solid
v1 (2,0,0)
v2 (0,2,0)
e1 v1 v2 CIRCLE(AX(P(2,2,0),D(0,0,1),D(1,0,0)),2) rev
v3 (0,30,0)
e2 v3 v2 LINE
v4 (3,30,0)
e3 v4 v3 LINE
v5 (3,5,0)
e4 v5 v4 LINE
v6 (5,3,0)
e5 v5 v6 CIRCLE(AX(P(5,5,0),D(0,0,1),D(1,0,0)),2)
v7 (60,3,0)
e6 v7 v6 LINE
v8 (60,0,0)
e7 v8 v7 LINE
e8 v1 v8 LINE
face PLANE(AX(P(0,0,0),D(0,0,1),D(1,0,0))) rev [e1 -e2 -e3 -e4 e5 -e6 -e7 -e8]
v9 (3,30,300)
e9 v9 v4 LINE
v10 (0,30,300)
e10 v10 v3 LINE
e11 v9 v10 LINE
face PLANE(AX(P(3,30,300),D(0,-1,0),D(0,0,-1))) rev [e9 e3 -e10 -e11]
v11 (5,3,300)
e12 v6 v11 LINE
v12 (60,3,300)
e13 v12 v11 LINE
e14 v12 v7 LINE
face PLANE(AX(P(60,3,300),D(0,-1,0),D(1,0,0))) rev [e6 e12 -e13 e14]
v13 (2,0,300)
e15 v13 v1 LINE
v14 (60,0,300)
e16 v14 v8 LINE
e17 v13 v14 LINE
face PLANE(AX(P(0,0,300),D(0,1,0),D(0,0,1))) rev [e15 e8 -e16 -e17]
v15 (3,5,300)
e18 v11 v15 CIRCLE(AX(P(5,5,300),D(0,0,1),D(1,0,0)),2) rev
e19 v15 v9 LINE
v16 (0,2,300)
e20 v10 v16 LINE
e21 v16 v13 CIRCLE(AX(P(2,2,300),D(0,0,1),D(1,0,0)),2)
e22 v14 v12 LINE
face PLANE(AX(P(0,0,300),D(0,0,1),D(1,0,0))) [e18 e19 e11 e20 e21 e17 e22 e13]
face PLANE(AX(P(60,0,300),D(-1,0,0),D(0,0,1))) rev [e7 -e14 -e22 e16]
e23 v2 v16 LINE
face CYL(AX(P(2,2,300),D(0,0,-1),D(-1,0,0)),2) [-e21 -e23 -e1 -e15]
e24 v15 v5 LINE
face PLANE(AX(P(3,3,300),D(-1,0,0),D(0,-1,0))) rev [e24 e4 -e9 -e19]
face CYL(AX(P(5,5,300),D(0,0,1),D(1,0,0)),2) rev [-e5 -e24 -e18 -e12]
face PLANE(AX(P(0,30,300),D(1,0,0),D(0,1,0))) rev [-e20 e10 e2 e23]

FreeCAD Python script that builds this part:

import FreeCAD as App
import Part
import Sketcher


def edges_at(feature, points):
    """Names of the edges that pass closest to the given points."""
    edges = feature.Shape.Edges
    near = lambda p: min(range(len(edges)), key=lambda i: edges[i].distToShape(Part.Vertex(*p))[0])
    return sorted({f"Edge{near(p) + 1}" for p in points})

doc = App.newDocument("Part")
body = doc.addObject("PartDesign::Body", "Body")

sketch1 = body.newObject("Sketcher::SketchObject", "Sketch")
sketch1.AttachmentSupport = (doc.getObject("XY_Plane"), [""])
sketch1.MapMode = "FlatFace"
sketch1.addGeometry([
    Part.LineSegment(App.Vector(0, 30, 0), App.Vector(0, 0, 0)),
    Part.LineSegment(App.Vector(0, 0, 0), App.Vector(60, 0, 0)),
    Part.LineSegment(App.Vector(60, 0, 0), App.Vector(60, 3, 0)),
    Part.LineSegment(App.Vector(60, 3, 0), App.Vector(3, 3, 0)),
    Part.LineSegment(App.Vector(3, 3, 0), App.Vector(3, 30, 0)),
    Part.LineSegment(App.Vector(3, 30, 0), App.Vector(0, 30, 0)),
], False)
sketch1.addConstraint([
    Sketcher.Constraint("Coincident", 0, 2, 1, 1),
    Sketcher.Constraint("Coincident", 1, 2, 2, 1),
    Sketcher.Constraint("Coincident", 2, 2, 3, 1),
    Sketcher.Constraint("Coincident", 3, 2, 4, 1),
    Sketcher.Constraint("Coincident", 4, 2, 5, 1),
    Sketcher.Constraint("Coincident", 5, 2, 0, 1),
    Sketcher.Constraint("Vertical", 0),
    Sketcher.Constraint("Horizontal", 1),
    Sketcher.Constraint("Vertical", 2),
    Sketcher.Constraint("Horizontal", 3),
    Sketcher.Constraint("Vertical", 4),
    Sketcher.Constraint("Horizontal", 5),
    Sketcher.Constraint("Coincident", 0, 2, -1, 1),
    Sketcher.Constraint("Equal", 5, 2),
    Sketcher.Constraint("DistanceX", 1, 1, 1, 2, 60.0),
    Sketcher.Constraint("DistanceX", 3, 2, 3, 1, 57.0),
    Sketcher.Constraint("DistanceY", 0, 2, 0, 1, 30.0),
])
pad1 = body.newObject("PartDesign::Pad", "Pad")
pad1.Profile = sketch1
pad1.Length = 300
doc.recompute()

fillet = body.newObject("PartDesign::Fillet", "Fillet")
fillet.Base = (pad1, edges_at(pad1, [(3, 3, 150), (0, 0, 150)]))
fillet.Radius = 2

doc.recompute()
